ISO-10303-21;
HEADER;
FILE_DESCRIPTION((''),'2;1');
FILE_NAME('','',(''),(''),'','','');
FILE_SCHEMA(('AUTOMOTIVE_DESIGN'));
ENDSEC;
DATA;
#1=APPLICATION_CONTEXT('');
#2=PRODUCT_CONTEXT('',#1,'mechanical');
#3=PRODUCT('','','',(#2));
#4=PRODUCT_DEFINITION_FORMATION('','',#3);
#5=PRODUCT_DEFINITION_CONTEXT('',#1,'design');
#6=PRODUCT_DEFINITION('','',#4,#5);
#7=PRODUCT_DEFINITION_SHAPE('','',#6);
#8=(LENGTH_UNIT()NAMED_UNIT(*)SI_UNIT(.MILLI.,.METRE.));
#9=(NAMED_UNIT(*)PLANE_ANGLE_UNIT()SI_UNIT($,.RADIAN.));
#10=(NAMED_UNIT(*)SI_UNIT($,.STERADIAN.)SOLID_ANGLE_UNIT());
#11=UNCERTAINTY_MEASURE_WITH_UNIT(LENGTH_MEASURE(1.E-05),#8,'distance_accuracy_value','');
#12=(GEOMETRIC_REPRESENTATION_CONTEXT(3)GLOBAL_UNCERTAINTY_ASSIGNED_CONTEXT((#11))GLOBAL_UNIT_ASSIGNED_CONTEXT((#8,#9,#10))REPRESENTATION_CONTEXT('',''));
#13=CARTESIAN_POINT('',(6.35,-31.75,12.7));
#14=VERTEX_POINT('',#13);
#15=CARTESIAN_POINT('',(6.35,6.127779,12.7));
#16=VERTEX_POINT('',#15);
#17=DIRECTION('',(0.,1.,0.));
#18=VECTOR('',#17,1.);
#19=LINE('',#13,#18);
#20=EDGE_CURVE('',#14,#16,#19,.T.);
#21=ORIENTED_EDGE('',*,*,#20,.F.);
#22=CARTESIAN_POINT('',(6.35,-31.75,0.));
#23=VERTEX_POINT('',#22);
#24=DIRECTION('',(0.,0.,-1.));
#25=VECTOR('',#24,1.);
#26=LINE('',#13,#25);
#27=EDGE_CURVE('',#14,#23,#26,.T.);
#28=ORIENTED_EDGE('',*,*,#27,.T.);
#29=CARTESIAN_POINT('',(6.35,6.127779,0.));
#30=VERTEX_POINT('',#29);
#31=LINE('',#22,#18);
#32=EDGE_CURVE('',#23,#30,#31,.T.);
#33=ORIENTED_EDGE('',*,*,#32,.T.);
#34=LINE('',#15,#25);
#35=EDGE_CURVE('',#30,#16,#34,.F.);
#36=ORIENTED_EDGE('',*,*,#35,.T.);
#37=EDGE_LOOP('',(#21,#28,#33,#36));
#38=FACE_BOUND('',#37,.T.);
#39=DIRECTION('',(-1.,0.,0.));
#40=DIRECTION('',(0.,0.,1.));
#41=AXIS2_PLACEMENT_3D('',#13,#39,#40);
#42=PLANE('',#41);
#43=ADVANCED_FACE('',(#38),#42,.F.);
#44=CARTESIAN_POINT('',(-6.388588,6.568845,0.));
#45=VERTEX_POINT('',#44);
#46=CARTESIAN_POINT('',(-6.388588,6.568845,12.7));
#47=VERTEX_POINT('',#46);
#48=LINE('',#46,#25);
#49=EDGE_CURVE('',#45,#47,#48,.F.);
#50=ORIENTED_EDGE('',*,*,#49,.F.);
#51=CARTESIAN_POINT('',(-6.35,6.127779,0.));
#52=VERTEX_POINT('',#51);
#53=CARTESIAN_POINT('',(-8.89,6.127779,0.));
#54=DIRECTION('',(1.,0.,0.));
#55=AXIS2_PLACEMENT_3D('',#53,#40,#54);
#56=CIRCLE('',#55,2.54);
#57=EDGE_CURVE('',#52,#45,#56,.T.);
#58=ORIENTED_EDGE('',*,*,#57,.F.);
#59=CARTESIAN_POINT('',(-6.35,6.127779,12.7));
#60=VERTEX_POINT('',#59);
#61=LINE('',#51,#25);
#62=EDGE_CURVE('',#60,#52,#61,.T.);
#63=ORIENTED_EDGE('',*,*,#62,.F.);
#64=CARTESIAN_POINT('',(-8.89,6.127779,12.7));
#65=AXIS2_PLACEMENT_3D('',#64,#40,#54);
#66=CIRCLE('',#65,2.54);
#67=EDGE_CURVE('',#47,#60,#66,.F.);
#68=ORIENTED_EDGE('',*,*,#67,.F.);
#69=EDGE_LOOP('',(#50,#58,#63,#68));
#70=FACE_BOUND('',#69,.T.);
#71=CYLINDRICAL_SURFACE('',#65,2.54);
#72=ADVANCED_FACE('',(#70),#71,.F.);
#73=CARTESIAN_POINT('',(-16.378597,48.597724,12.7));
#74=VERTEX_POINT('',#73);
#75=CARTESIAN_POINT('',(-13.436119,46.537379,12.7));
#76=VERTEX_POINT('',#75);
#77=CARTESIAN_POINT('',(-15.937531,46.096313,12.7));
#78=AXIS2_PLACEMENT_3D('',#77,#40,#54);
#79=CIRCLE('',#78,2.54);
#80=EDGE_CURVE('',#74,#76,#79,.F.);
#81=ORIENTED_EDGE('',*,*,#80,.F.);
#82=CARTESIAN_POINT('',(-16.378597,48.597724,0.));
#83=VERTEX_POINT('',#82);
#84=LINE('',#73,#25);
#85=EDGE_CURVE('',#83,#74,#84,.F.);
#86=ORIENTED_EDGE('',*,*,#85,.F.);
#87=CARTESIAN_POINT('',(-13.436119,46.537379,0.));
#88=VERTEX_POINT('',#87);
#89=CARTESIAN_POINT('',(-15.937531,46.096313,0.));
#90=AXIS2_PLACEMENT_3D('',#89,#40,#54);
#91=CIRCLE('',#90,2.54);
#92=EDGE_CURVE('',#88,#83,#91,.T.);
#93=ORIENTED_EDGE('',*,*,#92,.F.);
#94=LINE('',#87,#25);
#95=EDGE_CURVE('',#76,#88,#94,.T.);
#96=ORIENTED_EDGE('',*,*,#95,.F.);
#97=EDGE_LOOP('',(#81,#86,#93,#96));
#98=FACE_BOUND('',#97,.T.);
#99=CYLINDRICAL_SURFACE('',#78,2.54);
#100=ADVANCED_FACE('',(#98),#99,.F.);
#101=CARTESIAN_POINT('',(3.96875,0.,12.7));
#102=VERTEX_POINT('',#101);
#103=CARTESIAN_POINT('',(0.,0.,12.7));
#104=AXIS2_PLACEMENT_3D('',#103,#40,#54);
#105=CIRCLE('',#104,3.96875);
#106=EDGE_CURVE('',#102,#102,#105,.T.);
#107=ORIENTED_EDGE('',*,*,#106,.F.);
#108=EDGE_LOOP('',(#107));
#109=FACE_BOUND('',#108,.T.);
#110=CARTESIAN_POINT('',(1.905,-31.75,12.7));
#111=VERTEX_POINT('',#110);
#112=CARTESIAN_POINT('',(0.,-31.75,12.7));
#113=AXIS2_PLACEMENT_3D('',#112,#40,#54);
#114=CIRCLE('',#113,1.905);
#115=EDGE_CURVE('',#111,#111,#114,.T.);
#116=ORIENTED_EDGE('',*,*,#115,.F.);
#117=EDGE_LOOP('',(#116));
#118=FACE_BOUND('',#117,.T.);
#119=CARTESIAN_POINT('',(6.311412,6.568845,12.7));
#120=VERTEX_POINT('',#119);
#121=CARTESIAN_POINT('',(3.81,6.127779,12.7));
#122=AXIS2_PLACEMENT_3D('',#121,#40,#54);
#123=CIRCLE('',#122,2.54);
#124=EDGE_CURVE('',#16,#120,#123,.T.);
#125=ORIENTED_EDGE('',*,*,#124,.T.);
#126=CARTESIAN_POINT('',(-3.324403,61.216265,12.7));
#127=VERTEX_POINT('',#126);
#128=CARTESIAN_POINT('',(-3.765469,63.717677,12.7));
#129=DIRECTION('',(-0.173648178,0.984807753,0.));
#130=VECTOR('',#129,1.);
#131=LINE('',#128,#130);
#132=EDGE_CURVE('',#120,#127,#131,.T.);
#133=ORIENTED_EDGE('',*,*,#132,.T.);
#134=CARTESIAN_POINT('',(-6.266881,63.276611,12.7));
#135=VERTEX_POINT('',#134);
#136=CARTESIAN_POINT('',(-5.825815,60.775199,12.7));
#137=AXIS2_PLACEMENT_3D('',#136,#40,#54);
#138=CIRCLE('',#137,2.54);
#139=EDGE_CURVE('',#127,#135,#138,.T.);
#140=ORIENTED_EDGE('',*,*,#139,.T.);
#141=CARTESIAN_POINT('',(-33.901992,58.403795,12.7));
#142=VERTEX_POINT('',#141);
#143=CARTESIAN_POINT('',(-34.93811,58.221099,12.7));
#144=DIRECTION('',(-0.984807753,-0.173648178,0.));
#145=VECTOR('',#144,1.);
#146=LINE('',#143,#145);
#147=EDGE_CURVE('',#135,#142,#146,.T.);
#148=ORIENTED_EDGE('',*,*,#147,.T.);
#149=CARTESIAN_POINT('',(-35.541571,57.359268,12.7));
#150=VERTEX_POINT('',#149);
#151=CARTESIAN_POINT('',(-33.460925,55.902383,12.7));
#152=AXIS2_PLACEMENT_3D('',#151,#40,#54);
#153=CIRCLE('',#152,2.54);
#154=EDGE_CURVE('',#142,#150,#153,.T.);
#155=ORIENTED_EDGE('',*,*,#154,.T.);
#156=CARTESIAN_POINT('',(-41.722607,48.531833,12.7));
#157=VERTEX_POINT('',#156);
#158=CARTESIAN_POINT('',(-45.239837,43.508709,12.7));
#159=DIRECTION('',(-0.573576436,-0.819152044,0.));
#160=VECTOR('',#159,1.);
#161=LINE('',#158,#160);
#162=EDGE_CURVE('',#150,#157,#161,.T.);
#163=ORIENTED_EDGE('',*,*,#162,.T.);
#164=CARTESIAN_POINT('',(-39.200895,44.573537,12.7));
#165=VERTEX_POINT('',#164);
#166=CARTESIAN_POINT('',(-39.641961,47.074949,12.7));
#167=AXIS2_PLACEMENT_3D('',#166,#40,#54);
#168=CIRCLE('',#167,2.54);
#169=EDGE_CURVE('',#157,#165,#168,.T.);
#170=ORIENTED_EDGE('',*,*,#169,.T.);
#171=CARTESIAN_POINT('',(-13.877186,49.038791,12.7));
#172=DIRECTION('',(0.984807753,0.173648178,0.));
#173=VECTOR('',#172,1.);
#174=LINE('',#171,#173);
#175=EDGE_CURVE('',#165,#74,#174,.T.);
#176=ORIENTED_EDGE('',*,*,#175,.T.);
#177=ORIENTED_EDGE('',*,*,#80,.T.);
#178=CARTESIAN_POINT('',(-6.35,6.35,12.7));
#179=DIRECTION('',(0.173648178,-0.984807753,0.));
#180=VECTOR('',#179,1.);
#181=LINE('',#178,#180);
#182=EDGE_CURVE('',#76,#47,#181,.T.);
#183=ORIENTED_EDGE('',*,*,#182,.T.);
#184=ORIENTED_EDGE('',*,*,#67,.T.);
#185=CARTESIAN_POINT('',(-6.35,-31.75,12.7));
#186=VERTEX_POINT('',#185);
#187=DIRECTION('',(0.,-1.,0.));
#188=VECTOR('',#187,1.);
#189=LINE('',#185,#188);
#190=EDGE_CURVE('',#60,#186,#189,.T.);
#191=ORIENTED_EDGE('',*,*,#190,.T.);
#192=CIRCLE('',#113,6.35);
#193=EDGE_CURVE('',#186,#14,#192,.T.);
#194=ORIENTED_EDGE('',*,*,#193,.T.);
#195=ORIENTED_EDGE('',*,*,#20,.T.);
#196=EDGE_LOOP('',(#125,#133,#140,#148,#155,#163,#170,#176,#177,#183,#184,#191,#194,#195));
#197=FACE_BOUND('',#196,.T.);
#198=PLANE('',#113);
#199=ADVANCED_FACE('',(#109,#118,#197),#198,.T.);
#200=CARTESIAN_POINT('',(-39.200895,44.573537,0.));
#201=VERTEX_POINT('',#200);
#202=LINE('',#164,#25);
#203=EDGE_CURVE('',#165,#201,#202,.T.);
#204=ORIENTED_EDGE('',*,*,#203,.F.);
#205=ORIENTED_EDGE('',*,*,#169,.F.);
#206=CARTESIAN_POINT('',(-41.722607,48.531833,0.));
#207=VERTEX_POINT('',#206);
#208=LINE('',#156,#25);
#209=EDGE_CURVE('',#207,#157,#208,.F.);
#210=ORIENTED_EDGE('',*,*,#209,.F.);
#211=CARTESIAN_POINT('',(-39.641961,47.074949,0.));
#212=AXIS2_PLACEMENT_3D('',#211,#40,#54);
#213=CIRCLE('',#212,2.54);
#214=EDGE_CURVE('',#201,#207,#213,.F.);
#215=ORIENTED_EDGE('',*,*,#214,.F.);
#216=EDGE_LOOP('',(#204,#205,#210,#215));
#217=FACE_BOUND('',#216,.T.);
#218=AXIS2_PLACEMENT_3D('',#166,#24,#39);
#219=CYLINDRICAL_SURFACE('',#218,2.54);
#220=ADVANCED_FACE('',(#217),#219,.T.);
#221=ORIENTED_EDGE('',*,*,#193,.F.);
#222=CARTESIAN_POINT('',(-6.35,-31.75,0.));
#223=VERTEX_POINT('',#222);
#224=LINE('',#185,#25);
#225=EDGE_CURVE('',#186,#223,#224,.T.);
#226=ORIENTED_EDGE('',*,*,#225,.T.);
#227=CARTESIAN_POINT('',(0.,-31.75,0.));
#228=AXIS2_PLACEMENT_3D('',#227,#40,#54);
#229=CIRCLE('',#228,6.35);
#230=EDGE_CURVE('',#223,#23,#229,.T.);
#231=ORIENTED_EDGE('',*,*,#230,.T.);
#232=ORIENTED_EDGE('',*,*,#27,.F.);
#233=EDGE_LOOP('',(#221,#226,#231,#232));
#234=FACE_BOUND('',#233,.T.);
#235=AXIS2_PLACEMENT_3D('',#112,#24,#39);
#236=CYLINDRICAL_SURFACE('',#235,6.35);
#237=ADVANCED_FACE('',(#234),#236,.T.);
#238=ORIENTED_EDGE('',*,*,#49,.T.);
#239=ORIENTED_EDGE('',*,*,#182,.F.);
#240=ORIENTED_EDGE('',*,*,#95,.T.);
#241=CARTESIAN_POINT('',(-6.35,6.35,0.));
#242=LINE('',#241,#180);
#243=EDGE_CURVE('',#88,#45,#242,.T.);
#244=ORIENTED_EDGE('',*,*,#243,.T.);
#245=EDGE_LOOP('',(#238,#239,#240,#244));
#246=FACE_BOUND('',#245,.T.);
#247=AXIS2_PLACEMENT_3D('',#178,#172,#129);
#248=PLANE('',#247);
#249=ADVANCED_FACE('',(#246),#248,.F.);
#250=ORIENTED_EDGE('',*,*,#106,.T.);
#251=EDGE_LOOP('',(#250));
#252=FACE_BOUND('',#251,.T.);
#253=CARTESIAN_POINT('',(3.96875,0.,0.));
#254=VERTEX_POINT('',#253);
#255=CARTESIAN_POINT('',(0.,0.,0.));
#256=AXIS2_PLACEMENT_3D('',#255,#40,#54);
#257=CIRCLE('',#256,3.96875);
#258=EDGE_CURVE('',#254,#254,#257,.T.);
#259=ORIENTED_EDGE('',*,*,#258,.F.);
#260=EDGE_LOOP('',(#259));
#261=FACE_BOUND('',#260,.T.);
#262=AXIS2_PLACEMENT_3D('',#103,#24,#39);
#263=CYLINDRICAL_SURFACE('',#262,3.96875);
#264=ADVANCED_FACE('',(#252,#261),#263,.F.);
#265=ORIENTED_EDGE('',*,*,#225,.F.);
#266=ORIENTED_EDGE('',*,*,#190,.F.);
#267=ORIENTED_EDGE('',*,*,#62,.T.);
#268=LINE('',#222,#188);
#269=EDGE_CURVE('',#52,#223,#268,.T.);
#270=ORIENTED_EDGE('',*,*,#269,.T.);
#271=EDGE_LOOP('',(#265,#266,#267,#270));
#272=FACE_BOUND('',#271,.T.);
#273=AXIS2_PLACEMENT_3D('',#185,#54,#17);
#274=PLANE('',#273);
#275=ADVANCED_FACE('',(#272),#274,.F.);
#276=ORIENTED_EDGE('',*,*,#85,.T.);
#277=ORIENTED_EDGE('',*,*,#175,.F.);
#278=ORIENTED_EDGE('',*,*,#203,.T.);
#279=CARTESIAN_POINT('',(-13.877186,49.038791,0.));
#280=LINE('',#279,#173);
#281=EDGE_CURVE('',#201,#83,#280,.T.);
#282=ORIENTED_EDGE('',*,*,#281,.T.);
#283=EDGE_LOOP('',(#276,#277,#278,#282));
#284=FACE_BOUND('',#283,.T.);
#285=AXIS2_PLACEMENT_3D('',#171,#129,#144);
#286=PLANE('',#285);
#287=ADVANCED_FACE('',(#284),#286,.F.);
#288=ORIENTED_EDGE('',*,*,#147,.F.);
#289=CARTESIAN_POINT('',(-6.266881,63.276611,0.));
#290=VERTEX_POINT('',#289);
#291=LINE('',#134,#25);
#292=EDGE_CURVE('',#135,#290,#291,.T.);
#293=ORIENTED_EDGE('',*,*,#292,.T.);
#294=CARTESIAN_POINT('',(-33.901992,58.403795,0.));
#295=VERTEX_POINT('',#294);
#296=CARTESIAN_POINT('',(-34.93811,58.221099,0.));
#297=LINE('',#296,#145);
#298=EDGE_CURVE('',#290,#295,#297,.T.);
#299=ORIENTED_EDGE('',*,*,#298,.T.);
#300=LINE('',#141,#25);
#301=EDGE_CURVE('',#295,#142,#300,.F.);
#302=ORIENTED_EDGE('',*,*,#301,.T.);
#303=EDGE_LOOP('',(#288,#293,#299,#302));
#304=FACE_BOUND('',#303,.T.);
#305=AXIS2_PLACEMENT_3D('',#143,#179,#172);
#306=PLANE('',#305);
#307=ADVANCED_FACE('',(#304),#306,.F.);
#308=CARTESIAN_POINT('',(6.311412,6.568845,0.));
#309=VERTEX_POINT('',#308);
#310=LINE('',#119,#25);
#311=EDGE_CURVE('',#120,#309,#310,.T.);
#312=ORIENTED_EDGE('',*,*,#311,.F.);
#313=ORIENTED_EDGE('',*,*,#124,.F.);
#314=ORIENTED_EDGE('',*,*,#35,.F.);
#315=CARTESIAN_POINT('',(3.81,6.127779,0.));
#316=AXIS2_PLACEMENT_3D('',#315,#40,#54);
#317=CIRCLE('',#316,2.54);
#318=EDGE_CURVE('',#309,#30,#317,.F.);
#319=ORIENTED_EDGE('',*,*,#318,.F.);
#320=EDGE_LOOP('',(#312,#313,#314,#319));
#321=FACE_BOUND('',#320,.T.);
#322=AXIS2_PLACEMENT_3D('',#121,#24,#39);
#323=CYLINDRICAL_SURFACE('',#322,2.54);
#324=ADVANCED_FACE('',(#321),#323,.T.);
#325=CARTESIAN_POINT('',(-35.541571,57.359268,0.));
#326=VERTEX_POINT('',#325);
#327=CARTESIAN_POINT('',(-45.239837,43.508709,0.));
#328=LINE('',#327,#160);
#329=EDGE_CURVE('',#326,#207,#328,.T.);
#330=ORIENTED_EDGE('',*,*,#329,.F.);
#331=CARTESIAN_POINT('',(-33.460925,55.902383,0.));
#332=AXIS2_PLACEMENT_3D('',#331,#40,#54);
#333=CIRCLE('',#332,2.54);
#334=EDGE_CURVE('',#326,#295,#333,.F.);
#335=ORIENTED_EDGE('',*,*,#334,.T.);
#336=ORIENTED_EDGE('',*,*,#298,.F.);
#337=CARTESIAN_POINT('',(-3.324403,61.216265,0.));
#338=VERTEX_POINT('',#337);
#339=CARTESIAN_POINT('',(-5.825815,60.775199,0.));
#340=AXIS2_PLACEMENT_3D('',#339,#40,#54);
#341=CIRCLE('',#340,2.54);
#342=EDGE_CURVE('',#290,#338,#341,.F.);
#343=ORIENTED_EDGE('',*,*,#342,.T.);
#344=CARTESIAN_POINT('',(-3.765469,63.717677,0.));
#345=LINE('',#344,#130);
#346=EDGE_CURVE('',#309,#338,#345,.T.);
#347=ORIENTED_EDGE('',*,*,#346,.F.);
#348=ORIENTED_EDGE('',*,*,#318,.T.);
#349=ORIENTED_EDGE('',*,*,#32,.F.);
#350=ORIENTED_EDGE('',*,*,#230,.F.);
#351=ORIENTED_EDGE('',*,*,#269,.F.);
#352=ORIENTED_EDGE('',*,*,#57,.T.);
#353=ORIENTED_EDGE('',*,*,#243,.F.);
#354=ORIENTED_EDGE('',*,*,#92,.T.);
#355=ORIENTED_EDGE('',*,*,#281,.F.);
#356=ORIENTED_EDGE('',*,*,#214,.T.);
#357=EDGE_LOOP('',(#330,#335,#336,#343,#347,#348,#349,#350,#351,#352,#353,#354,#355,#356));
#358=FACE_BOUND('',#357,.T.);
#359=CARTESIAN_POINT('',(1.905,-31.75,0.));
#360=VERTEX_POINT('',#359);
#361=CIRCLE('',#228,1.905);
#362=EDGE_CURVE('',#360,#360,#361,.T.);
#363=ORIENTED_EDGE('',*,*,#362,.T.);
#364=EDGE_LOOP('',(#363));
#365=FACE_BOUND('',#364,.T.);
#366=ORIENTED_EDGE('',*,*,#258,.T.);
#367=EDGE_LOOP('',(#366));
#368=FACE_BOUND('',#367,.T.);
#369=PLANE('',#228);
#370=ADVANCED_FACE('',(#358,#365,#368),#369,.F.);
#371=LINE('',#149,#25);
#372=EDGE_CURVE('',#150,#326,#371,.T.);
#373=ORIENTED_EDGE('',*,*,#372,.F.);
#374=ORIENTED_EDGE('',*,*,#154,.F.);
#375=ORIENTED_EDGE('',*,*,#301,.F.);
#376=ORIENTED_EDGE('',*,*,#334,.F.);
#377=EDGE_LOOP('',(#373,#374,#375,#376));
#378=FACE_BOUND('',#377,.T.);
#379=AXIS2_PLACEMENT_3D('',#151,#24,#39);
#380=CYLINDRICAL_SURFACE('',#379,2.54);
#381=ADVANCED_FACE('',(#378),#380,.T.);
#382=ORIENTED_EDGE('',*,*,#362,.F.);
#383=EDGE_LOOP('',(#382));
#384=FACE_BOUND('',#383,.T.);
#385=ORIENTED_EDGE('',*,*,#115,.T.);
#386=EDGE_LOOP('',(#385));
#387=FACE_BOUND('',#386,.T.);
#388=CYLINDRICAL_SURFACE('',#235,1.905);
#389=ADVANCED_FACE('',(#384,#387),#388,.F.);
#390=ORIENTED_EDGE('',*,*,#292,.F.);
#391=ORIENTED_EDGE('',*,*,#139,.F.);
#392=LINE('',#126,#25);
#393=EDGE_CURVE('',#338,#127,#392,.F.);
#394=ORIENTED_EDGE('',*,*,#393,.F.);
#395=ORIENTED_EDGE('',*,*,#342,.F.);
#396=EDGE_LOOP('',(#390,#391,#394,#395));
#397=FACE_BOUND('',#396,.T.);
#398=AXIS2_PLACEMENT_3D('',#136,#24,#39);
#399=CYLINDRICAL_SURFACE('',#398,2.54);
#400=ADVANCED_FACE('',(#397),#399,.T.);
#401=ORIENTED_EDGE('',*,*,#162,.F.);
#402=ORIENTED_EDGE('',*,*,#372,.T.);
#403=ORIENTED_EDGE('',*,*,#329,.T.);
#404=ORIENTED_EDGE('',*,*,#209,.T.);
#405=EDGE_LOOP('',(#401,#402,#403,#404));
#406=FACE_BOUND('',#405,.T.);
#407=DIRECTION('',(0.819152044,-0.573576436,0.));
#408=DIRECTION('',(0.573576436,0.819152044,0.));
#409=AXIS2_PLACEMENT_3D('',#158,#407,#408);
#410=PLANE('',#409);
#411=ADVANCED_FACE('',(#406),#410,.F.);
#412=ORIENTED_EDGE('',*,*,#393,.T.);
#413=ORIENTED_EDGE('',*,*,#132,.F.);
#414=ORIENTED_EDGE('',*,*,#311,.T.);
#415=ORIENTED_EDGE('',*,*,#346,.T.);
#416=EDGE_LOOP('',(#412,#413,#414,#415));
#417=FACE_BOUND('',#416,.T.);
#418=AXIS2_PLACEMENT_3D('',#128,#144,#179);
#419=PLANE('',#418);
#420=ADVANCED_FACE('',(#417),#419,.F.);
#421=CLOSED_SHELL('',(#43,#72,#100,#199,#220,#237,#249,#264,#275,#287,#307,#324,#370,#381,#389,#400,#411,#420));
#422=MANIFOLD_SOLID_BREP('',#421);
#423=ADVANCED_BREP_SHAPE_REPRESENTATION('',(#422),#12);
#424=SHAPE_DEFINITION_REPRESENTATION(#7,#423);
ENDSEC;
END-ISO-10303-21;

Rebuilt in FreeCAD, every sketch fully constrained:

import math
import FreeCAD as App
import Part
import Sketcher
from FreeCAD import Vector
Q = App.Units.Quantity


def edges_at(feature, points):
    """Names of the edges that pass closest to the given points."""
    edges = feature.Shape.Edges
    near = lambda p: min(range(len(edges)), key=lambda i: edges[i].distToShape(Part.Vertex(*p))[0])
    return sorted({f"Edge{near(p) + 1}" for p in points})

doc = App.newDocument("Part")
params = doc.addObject("Spreadsheet::Sheet", "Params")
for row, (alias, value) in enumerate([
    ("sketch1_diameter", "0.15 in"),
    ("sketch1_radius", "0.25 in"),
    ("sketch1_diameter2", "0.3125 in"),
    ("sketch1_height", "1.5 in"),
    ("pad1_length", "0.5 in"),
    ("fillet_radius", "0.1 in"),
], start=1):
    params.set(f"A{row}", alias)
    params.set(f"B{row}", "=" + value)
    params.setAlias(f"B{row}", alias)

body = doc.addObject("PartDesign::Body", "Body")

# Sketch on XY plane
sketch1 = body.newObject("Sketcher::SketchObject", "Sketch")
sketch1.AttachmentSupport = (doc.getObject("XY_Plane"), [""])
sketch1.MapMode = "FlatFace"
sketch1.addGeometry([
    Part.LineSegment(Vector(-6.3, 6.3, 0), Vector(-6.3, -31.8, 0)),  # 0
    Part.ArcOfCircle(Part.Circle(Vector(0, -31.8, 0), Vector(0, 0, 1), 6.3), math.radians(180), math.radians(360)),  # 1
    Part.LineSegment(Vector(6.3, -31.8, 0), Vector(6.3, 6.3, 0)),  # 2
    Part.LineSegment(Vector(6.3, 6.3, 0), Vector(-3.8, 63.7, 0)),  # 3
    Part.LineSegment(Vector(-3.8, 63.7, 0), Vector(-34.9, 58.2, 0)),  # 4
    Part.LineSegment(Vector(-34.9, 58.2, 0), Vector(-45.2, 43.5, 0)),  # 5
    Part.LineSegment(Vector(-45.2, 43.5, 0), Vector(-13.9, 49, 0)),  # 6
    Part.LineSegment(Vector(-13.9, 49, 0), Vector(-6.3, 6.3, 0)),  # 7
    Part.Circle(Vector(0, -31.8, 0), Vector(0, 0, 1), 1.9),  # 8
    Part.Circle(Vector(0, 0, 0), Vector(0, 0, 1), 4),  # 9
], False)
sketch1.addConstraint([
    Sketcher.Constraint("Tangent", 0, 2, 1, 1),
    Sketcher.Constraint("Tangent", 1, 2, 2, 1),
    Sketcher.Constraint("Coincident", 2, 2, 3, 1),
    Sketcher.Constraint("Coincident", 3, 2, 4, 1),
    Sketcher.Constraint("Coincident", 4, 2, 5, 1),
    Sketcher.Constraint("Coincident", 5, 2, 6, 1),
    Sketcher.Constraint("Coincident", 6, 2, 7, 1),
    Sketcher.Constraint("Coincident", 7, 2, 0, 1),
    Sketcher.Constraint("Vertical", 0),
    Sketcher.Constraint("Vertical", 2),
    Sketcher.Constraint("Coincident", 9, 3, -1, 1),
    Sketcher.Constraint("Coincident", 8, 3, 1, 3),
    Sketcher.Constraint("Symmetric", 2, 2, 7, 2, -2),
    Sketcher.Constraint("Perpendicular", 3, 4),
    Sketcher.Constraint("Parallel", 4, 6),
    Sketcher.Constraint("Perpendicular", 6, 7),
    Sketcher.Constraint("Diameter", 8, Q("0.15 in")),
    Sketcher.Constraint("Radius", 1, Q("0.25 in")),
    Sketcher.Constraint("Diameter", 9, Q("0.3125 in")),
    Sketcher.Constraint("DistanceY", 0, 2, 0, 1, Q("1.5 in")),
    Sketcher.Constraint("Angle", 3, Q("100 deg")),
    Sketcher.Constraint("Angle", 5, Q("-125 deg")),
    Sketcher.Constraint("DistanceY", 1, 3, -1, 1, Q("1.25 in")),
    Sketcher.Constraint("DistanceY", -1, 1, 4, 2, Q("58.221099 mm")),
    Sketcher.Constraint("Distance", 4, Q("31.653529 mm")),
    Sketcher.Constraint("Distance", 6, Q("31.846471 mm")),
])
sketch1.setExpression("Constraints[16]", "Params.sketch1_diameter")
sketch1.setExpression("Constraints[17]", "Params.sketch1_radius")
sketch1.setExpression("Constraints[18]", "Params.sketch1_diameter2")
sketch1.setExpression("Constraints[19]", "Params.sketch1_height")
pad1 = body.newObject("PartDesign::Pad", "Pad")
pad1.Profile = sketch1
pad1.setExpression("Length", "Params.pad1_length")
doc.recompute()

fillet = body.newObject("PartDesign::Fillet", "Fillet")
fillet.Base = (pad1, edges_at(pad1, [
    (-6.35, 6.35, 6.35),
    (-13.877, 49.039, 6.35),
    (-45.24, 43.509, 6.35),
    (-34.938, 58.221, 6.35),
    (-3.765, 63.718, 6.35),
    (6.35, 6.35, 6.35),
]))
fillet.setExpression("Radius", "Params.fillet_radius")

doc.recompute()
